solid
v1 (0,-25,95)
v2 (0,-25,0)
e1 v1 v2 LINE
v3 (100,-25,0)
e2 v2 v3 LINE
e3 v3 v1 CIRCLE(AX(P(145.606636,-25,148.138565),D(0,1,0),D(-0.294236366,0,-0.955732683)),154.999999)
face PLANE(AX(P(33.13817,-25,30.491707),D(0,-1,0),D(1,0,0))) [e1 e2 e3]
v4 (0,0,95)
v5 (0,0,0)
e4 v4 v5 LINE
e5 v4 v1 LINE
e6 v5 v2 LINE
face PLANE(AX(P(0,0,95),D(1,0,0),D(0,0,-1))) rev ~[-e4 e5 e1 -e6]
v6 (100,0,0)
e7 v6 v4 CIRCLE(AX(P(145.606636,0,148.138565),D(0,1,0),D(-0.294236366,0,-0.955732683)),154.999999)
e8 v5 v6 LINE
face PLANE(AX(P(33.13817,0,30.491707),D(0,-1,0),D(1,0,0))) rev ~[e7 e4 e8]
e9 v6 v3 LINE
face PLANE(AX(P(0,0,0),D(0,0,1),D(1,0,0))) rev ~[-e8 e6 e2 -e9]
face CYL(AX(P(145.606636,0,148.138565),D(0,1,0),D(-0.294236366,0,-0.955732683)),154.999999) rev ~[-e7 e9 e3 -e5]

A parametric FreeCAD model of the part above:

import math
import FreeCAD as App
import Part
import Sketcher

doc = App.newDocument("Part")
params = doc.addObject("Spreadsheet::Sheet", "Params")
for row, (alias, value) in enumerate([
    ("sketch1_radius", "154.999999 mm"),
    ("sketch1_width", "100 mm"),
    ("sketch1_height", "95 mm"),
    ("pad1_length", "25 mm"),
], start=1):
    params.set(f"A{row}", alias)
    params.set(f"B{row}", "=" + value)
    params.setAlias(f"B{row}", alias)

body = doc.addObject("PartDesign::Body", "Body")

sketch1 = body.newObject("Sketcher::SketchObject", "Sketch")
sketch1.AttachmentSupport = (doc.getObject("XZ_Plane"), [""])
sketch1.MapMode = "FlatFace"
sketch1.addGeometry([
    Part.LineSegment(App.Vector(0, 95, 0), App.Vector(0, 0, 0)),
    Part.LineSegment(App.Vector(0, 0, 0), App.Vector(100, 0, 0)),
    Part.ArcOfCircle(Part.Circle(App.Vector(146, 148, 0), App.Vector(0, 0, 1), 155), math.radians(-160), math.radians(-107)),
], False)
sketch1.addConstraint([
    Sketcher.Constraint("Coincident", 0, 2, 1, 1),
    Sketcher.Constraint("Coincident", 1, 2, 2, 2),
    Sketcher.Constraint("Coincident", 2, 1, 0, 1),
    Sketcher.Constraint("Vertical", 0),
    Sketcher.Constraint("Horizontal", 1),
    Sketcher.Constraint("Coincident", 0, 2, -1, 1),
    Sketcher.Constraint("Radius", 2, 154.999999),
    Sketcher.Constraint("DistanceX", 1, 1, 1, 2, 100.0),
    Sketcher.Constraint("DistanceY", 0, 2, 0, 1, 95.0),
])
sketch1.setExpression("Constraints[6]", "Params.sketch1_radius")
sketch1.setExpression("Constraints[7]", "Params.sketch1_width")
sketch1.setExpression("Constraints[8]", "Params.sketch1_height")
pad1 = body.newObject("PartDesign::Pad", "Pad")
pad1.Profile = sketch1
pad1.setExpression("Length", "Params.pad1_length")

doc.recompute()
